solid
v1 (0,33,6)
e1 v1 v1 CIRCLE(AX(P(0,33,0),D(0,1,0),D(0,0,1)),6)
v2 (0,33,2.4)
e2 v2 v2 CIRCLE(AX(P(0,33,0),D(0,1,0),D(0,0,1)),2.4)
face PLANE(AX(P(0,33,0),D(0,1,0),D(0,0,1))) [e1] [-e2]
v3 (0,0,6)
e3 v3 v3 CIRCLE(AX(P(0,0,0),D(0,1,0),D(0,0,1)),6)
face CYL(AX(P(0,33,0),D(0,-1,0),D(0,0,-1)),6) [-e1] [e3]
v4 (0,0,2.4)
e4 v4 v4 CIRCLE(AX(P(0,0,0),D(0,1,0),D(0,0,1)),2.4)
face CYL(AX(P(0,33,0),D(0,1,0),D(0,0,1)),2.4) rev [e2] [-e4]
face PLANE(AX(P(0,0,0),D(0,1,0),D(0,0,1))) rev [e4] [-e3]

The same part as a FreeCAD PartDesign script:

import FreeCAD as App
import Part
import Sketcher
from FreeCAD import Vector
Q = App.Units.Quantity

doc = App.newDocument("Part")
body = doc.addObject("PartDesign::Body", "Body")

# Sketch on XZ plane
sketch1 = body.newObject("Sketcher::SketchObject", "Sketch")
sketch1.AttachmentSupport = (doc.getObject("XZ_Plane"), [""])
sketch1.MapMode = "FlatFace"
sketch1.addGeometry(Part.Circle(Vector(0, 0, 0), Vector(0, 0, 1), 6), False)
sketch1.addConstraint([
    Sketcher.Constraint("Coincident", 0, 3, -1, 1),
    Sketcher.Constraint("Diameter", 0, Q("12 mm")),
])
pad1 = body.newObject("PartDesign::Pad", "Pad")
pad1.Profile = sketch1
pad1.Length = 33
pad1.Reversed = True

# Sketch on XZ plane
sketch2 = body.newObject("Sketcher::SketchObject", "Sketch001")
sketch2.AttachmentSupport = (doc.getObject("XZ_Plane"), [""])
sketch2.MapMode = "FlatFace"
sketch2.AttachmentOffset = App.Placement(Vector(0, 0, -33), App.Rotation())
sketch2.addGeometry(Part.Circle(Vector(0, 0, 0), Vector(0, 0, 1), 2.4), False)
sketch2.addConstraint([
    Sketcher.Constraint("Coincident", 0, 3, -1, 1),
    Sketcher.Constraint("Diameter", 0, Q("4.8 mm")),
])
doc.recompute()
hole = body.newObject("PartDesign::Hole", "Hole")
hole.Profile = sketch2
hole.ThreadType = "None"
hole.Diameter = 4.8
hole.DepthType = "ThroughAll"
hole.Reversed = True

doc.recompute()
